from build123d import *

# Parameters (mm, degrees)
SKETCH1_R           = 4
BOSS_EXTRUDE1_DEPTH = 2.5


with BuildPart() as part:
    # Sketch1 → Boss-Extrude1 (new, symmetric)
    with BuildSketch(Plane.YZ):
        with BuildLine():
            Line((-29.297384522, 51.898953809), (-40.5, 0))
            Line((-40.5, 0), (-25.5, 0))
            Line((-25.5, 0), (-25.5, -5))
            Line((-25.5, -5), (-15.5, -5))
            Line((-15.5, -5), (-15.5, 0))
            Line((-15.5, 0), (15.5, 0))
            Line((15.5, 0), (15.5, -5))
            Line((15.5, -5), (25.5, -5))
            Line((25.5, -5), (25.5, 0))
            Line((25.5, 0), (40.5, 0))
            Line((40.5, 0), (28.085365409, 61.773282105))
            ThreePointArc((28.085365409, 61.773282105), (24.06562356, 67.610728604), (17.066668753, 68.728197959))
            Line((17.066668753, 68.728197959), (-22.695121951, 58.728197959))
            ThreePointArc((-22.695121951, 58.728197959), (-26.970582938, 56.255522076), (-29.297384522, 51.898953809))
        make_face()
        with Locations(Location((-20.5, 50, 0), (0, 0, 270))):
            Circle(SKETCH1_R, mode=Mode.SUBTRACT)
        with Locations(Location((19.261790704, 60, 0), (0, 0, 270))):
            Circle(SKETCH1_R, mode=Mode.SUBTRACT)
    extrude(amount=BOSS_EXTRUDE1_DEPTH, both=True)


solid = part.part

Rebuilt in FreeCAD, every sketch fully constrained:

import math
import FreeCAD as App
import Part
import Sketcher
Q = App.Units.Quantity

doc = App.newDocument("Part")
body = doc.addObject("PartDesign::Body", "Body")

sketch1 = doc.addObject("Sketcher::SketchObject", "Sketch")
body.addObject(sketch1)
sketch1.AttachmentSupport = (doc.YZ_Plane, [""])
sketch1.MapMode = "FlatFace"
sketch1.addGeometry(Part.LineSegment(App.Vector(-29.3, 51.9, 0), App.Vector(-40.5, 0, 0)), False)
sketch1.addGeometry(Part.LineSegment(App.Vector(-40.5, 0, 0), App.Vector(-25.5, 0, 0)), False)
sketch1.addGeometry(Part.LineSegment(App.Vector(-25.5, 0, 0), App.Vector(-25.5, -5, 0)), False)
sketch1.addGeometry(Part.LineSegment(App.Vector(-25.5, -5, 0), App.Vector(-15.5, -5, 0)), False)
sketch1.addGeometry(Part.LineSegment(App.Vector(-15.5, -5, 0), App.Vector(-15.5, 0, 0)), False)
sketch1.addGeometry(Part.LineSegment(App.Vector(-15.5, 0, 0), App.Vector(15.5, 0, 0)), False)
sketch1.addGeometry(Part.LineSegment(App.Vector(15.5, 0, 0), App.Vector(15.5, -5, 0)), False)
sketch1.addGeometry(Part.LineSegment(App.Vector(15.5, -5, 0), App.Vector(25.5, -5, 0)), False)
sketch1.addGeometry(Part.LineSegment(App.Vector(25.5, -5, 0), App.Vector(25.5, 0, 0)), False)
sketch1.addGeometry(Part.LineSegment(App.Vector(25.5, 0, 0), App.Vector(40.5, 0, 0)), False)
sketch1.addGeometry(Part.LineSegment(App.Vector(40.5, 0, 0), App.Vector(28.1, 61.8, 0)), False)
sketch1.addGeometry(Part.ArcOfCircle(Part.Circle(App.Vector(19.3, 60, 0), App.Vector(0, 0, 1), 9), math.radians(11), math.radians(104)), False)
sketch1.addGeometry(Part.LineSegment(App.Vector(17.1, 68.7, 0), App.Vector(-22.7, 58.7, 0)), False)
sketch1.addGeometry(Part.ArcOfCircle(Part.Circle(App.Vector(-20.5, 50, 0), App.Vector(0, 0, 1), 9), math.radians(104), math.radians(168)), False)
sketch1.addGeometry(Part.Circle(App.Vector(-20.5, 50, 0), App.Vector(0, 0, 1), 4), False)
sketch1.addGeometry(Part.Circle(App.Vector(19.3, 60, 0), App.Vector(0, 0, 1), 4), False)
sketch1.addConstraint(Sketcher.Constraint("Coincident", 0, 2, 1, 1))
sketch1.addConstraint(Sketcher.Constraint("Coincident", 1, 2, 2, 1))
sketch1.addConstraint(Sketcher.Constraint("Coincident", 2, 2, 3, 1))
sketch1.addConstraint(Sketcher.Constraint("Coincident", 3, 2, 4, 1))
sketch1.addConstraint(Sketcher.Constraint("Coincident", 4, 2, 5, 1))
sketch1.addConstraint(Sketcher.Constraint("Coincident", 5, 2, 6, 1))
sketch1.addConstraint(Sketcher.Constraint("Coincident", 6, 2, 7, 1))
sketch1.addConstraint(Sketcher.Constraint("Coincident", 7, 2, 8, 1))
sketch1.addConstraint(Sketcher.Constraint("Coincident", 8, 2, 9, 1))
sketch1.addConstraint(Sketcher.Constraint("Coincident", 9, 2, 10, 1))
sketch1.addConstraint(Sketcher.Constraint("Tangent", 10, 2, 11, 1))
sketch1.addConstraint(Sketcher.Constraint("Tangent", 11, 2, 12, 1))
sketch1.addConstraint(Sketcher.Constraint("Tangent", 12, 2, 13, 1))
sketch1.addConstraint(Sketcher.Constraint("Tangent", 13, 2, 0, 1))
sketch1.addConstraint(Sketcher.Constraint("Horizontal", 1))
sketch1.addConstraint(Sketcher.Constraint("Vertical", 2))
sketch1.addConstraint(Sketcher.Constraint("Horizontal", 3))
sketch1.addConstraint(Sketcher.Constraint("Vertical", 4))
sketch1.addConstraint(Sketcher.Constraint("Horizontal", 5))
sketch1.addConstraint(Sketcher.Constraint("Vertical", 6))
sketch1.addConstraint(Sketcher.Constraint("Horizontal", 7))
sketch1.addConstraint(Sketcher.Constraint("Vertical", 8))
sketch1.addConstraint(Sketcher.Constraint("Horizontal", 9))
sketch1.addConstraint(Sketcher.Constraint("Coincident", 14, 3, 13, 3))
sketch1.addConstraint(Sketcher.Constraint("Coincident", 15, 3, 11, 3))
sketch1.addConstraint(Sketcher.Constraint("Equal", 11, 13))
sketch1.addConstraint(Sketcher.Constraint("Equal", 14, 15))
sketch1.addConstraint(Sketcher.Constraint("Symmetric", 4, 2, 5, 2, -1, 1))
sketch1.addConstraint(Sketcher.Constraint("Symmetric", 1, 2, 8, 2, -1, 1))
sketch1.addConstraint(Sketcher.Constraint("Symmetric", 0, 2, 9, 2, -2))
sketch1.addConstraint(Sketcher.Constraint("Horizontal", 3, 2, 6, 2))
sketch1.addConstraint(Sketcher.Constraint("Diameter", 14, Q("8 mm")))
sketch1.addConstraint(Sketcher.Constraint("Radius", 11, Q("9 mm")))
sketch1.addConstraint(Sketcher.Constraint("DistanceX", 1, 1, 1, 2, Q("15 mm")))
sketch1.addConstraint(Sketcher.Constraint("DistanceX", 3, 1, 3, 2, Q("10 mm")))
sketch1.addConstraint(Sketcher.Constraint("DistanceX", 5, 1, 5, 2, Q("31 mm")))
sketch1.addConstraint(Sketcher.Constraint("DistanceY", 2, 2, 2, 1, Q("5 mm")))
sketch1.addConstraint(Sketcher.Constraint("Distance", 12, Q("41 mm")))
sketch1.addConstraint(Sketcher.Constraint("DistanceY", -1, 1, 11, 3, Q("60 mm")))
sketch1.addConstraint(Sketcher.Constraint("DistanceY", -1, 1, 13, 3, Q("50 mm")))
sketch1.addConstraint(Sketcher.Constraint("DistanceX", 0, 2, 14, 3, Q("20 mm")))
pad1 = doc.addObject("PartDesign::Pad", "Pad")
body.addObject(pad1)
pad1.Profile = sketch1
pad1.Length = 5
pad1.Midplane = True

doc.recompute()
